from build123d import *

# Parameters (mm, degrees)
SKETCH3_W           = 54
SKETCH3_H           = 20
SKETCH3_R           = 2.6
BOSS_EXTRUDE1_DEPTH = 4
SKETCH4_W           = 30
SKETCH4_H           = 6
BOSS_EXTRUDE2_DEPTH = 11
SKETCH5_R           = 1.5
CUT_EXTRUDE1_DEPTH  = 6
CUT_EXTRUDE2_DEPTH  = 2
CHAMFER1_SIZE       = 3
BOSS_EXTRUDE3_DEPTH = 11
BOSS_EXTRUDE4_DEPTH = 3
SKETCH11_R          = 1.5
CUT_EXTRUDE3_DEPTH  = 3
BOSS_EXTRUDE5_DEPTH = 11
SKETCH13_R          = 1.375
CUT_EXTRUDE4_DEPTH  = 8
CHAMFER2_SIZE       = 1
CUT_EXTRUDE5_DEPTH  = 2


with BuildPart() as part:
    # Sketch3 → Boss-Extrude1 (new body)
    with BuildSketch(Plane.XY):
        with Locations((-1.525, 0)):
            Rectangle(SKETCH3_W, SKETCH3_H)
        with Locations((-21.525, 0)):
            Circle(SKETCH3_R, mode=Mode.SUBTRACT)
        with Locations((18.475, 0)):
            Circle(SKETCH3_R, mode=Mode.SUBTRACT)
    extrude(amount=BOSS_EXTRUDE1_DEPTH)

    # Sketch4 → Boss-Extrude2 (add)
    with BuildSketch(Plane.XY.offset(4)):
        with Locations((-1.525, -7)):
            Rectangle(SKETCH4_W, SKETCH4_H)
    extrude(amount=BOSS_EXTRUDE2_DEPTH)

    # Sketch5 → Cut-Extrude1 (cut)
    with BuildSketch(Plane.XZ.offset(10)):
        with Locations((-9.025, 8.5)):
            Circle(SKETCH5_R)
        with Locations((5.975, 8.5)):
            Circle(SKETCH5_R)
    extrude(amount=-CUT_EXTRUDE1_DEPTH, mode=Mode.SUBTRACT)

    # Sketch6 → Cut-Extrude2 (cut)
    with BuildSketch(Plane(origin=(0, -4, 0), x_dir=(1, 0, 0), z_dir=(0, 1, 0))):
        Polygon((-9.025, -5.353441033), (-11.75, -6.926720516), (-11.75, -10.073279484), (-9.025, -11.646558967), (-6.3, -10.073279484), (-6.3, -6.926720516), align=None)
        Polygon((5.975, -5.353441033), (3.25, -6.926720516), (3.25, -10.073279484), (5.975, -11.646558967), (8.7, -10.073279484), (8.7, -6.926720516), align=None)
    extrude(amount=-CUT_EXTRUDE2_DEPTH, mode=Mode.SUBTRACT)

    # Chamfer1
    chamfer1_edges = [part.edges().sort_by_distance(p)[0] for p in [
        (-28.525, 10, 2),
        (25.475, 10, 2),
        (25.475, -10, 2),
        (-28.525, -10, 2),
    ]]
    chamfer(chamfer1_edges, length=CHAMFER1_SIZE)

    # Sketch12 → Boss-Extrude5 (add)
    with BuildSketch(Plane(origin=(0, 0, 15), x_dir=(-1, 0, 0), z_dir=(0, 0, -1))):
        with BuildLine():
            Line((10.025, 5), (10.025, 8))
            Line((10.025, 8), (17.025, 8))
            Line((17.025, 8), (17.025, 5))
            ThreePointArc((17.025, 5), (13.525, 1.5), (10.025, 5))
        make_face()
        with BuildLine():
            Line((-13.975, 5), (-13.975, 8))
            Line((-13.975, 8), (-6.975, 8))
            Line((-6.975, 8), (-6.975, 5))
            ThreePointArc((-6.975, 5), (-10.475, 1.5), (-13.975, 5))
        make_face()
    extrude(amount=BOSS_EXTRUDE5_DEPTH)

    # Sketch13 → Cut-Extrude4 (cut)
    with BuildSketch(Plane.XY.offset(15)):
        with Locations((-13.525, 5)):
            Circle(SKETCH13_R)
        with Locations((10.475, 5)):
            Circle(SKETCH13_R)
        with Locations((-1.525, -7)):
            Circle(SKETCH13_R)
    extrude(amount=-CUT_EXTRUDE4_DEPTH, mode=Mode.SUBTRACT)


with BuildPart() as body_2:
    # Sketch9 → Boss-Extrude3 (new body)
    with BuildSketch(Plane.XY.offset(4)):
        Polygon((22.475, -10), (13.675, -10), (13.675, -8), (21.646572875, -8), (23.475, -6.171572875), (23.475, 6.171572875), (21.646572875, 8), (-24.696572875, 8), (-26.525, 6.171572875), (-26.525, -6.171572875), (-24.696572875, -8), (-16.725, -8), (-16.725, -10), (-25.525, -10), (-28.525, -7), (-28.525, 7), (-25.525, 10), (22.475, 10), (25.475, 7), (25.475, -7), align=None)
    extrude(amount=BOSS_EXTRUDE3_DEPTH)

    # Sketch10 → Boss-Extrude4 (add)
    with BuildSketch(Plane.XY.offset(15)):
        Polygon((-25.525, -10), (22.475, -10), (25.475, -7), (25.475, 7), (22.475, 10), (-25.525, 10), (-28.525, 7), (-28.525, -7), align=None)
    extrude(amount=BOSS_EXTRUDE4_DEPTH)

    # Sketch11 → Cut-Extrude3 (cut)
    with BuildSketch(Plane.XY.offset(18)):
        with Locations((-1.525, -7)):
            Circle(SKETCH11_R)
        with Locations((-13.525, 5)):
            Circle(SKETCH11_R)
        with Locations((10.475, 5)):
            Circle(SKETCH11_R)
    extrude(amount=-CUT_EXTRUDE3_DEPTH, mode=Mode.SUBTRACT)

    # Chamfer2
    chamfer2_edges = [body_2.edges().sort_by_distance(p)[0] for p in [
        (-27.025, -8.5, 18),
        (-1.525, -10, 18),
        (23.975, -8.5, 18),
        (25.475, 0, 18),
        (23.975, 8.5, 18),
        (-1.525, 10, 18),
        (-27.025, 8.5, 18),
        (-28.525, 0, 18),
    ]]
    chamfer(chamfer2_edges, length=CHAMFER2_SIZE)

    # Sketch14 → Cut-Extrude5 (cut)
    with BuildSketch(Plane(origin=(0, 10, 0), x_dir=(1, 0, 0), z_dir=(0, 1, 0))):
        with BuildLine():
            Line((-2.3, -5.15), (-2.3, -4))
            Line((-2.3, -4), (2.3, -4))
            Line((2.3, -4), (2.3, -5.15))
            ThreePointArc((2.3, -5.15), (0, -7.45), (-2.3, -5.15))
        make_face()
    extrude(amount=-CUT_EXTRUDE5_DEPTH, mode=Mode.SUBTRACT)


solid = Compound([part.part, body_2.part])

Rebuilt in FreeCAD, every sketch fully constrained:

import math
import FreeCAD as App
import Part
import Sketcher

V = App.Vector
Q = App.Units.Quantity


def edges_at(feature, points):
    """Names of the edges that pass closest to the given points."""
    edges = feature.Shape.Edges
    near = lambda p: min(range(len(edges)), key=lambda i: edges[i].distToShape(Part.Vertex(*p))[0])
    return sorted({f"Edge{near(p) + 1}" for p in points})

doc = App.newDocument("Part")
params = doc.addObject("Spreadsheet::Sheet", "Params")
for row, (alias, value) in enumerate([
    ("sketch1_diameter", "5.2 mm"),
    ("sketch1_width", "54 mm"),
    ("sketch1_height", "20 mm"),
    ("pad1_length", "4 mm"),
    ("sketch2_width", "30 mm"),
    ("sketch2_height", "6 mm"),
    ("pad2_length", "11 mm"),
    ("sketch3_diameter", "3 mm"),
    ("pocket1_length", "6 mm"),
    ("pocket2_length", "2 mm"),
    ("chamfer_size", "3 mm"),
    ("sketch5_radius", "3.5 mm"),
    ("sketch5_height", "3 mm"),
    ("pad3_length", "11 mm"),
    ("sketch6_diameter", "2.75 mm"),
    ("pocket3_length", "8 mm"),
    ("sketch7_width", "48 mm"),
    ("sketch7_height", "14 mm"),
    ("sketch7_height2", "2 mm"),
    ("sketch7_width2", "8.8 mm"),
    ("pad4_length", "11 mm"),
    ("sketch8_width", "48 mm"),
    ("sketch8_height", "14 mm"),
    ("pad5_length", "3 mm"),
    ("sketch9_diameter", "3 mm"),
    ("pocket4_length", "3 mm"),
    ("chamfer2_size", "1 mm"),
    ("sketch10_radius", "2.3 mm"),
    ("sketch10_height", "1.15 mm"),
    ("pocket5_length", "2 mm"),
], start=1):
    params.set(f"A{row}", alias)
    params.set(f"B{row}", "=" + value)
    params.setAlias(f"B{row}", alias)

body = doc.addObject("PartDesign::Body", "Body")

# Sketch on XY plane
sketch1 = body.newObject("Sketcher::SketchObject", "Sketch")
sketch1.AttachmentSupport = (doc.getObject("XY_Plane"), [""])
sketch1.MapMode = "FlatFace"
sketch1.addGeometry(Part.LineSegment(V(-28.5, 10, 0), V(-28.5, -10, 0)), False)
sketch1.addGeometry(Part.LineSegment(V(-28.5, -10, 0), V(25.5, -10, 0)), False)
sketch1.addGeometry(Part.LineSegment(V(25.5, -10, 0), V(25.5, 10, 0)), False)
sketch1.addGeometry(Part.LineSegment(V(25.5, 10, 0), V(-28.5, 10, 0)), False)
sketch1.addGeometry(Part.Circle(V(-21.5, 0, 0), V(0, 0, 1), 2.6), False)
sketch1.addGeometry(Part.Circle(V(18.5, 0, 0), V(0, 0, 1), 2.6), False)
sketch1.addConstraint(Sketcher.Constraint("Coincident", 0, 2, 1, 1))
sketch1.addConstraint(Sketcher.Constraint("Coincident", 1, 2, 2, 1))
sketch1.addConstraint(Sketcher.Constraint("Coincident", 2, 2, 3, 1))
sketch1.addConstraint(Sketcher.Constraint("Coincident", 3, 2, 0, 1))
sketch1.addConstraint(Sketcher.Constraint("Vertical", 0))
sketch1.addConstraint(Sketcher.Constraint("Horizontal", 1))
sketch1.addConstraint(Sketcher.Constraint("Vertical", 2))
sketch1.addConstraint(Sketcher.Constraint("Horizontal", 3))
sketch1.addConstraint(Sketcher.Constraint("Equal", 4, 5))
sketch1.addConstraint(Sketcher.Constraint("PointOnObject", 4, 3, -1))
sketch1.addConstraint(Sketcher.Constraint("PointOnObject", 5, 3, -1))
sketch1.addConstraint(Sketcher.Constraint("Diameter", 4, Q("5.2 mm")))
sketch1.addConstraint(Sketcher.Constraint("DistanceX", 1, 1, 1, 2, Q("54 mm")))
sketch1.addConstraint(Sketcher.Constraint("DistanceY", 0, 2, 0, 1, Q("20 mm")))
sketch1.addConstraint(Sketcher.Constraint("DistanceY", 0, 2, -1, 1, Q("10 mm")))
sketch1.addConstraint(Sketcher.Constraint("DistanceX", 4, 3, 5, 3, Q("40 mm")))
sketch1.addConstraint(Sketcher.Constraint("DistanceX", 0, 2, 4, 3, Q("7 mm")))
sketch1.addConstraint(Sketcher.Constraint("DistanceX", 4, 3, -1, 1, Q("21.525 mm")))
sketch1.setExpression("Constraints[11]", "Params.sketch1_diameter")
sketch1.setExpression("Constraints[12]", "Params.sketch1_width")
sketch1.setExpression("Constraints[13]", "Params.sketch1_height")
pad1 = body.newObject("PartDesign::Pad", "Pad")
pad1.Profile = sketch1
pad1.setExpression("Length", "Params.pad1_length")

# Sketch on XY plane
sketch2 = body.newObject("Sketcher::SketchObject", "Sketch001")
sketch2.AttachmentSupport = (doc.getObject("XY_Plane"), [""])
sketch2.MapMode = "FlatFace"
sketch2.AttachmentOffset = App.Placement(V(0, 0, 4), App.Rotation())
sketch2.addGeometry(Part.LineSegment(V(-17, -4, 0), V(-17, -10, 0)), False)
sketch2.addGeometry(Part.LineSegment(V(-17, -10, 0), V(13, -10, 0)), False)
sketch2.addGeometry(Part.LineSegment(V(13, -10, 0), V(13, -4, 0)), False)
sketch2.addGeometry(Part.LineSegment(V(13, -4, 0), V(-17, -4, 0)), False)
sketch2.addConstraint(Sketcher.Constraint("Coincident", 0, 2, 1, 1))
sketch2.addConstraint(Sketcher.Constraint("Coincident", 1, 2, 2, 1))
sketch2.addConstraint(Sketcher.Constraint("Coincident", 2, 2, 3, 1))
sketch2.addConstraint(Sketcher.Constraint("Coincident", 3, 2, 0, 1))
sketch2.addConstraint(Sketcher.Constraint("Vertical", 0))
sketch2.addConstraint(Sketcher.Constraint("Horizontal", 1))
sketch2.addConstraint(Sketcher.Constraint("Vertical", 2))
sketch2.addConstraint(Sketcher.Constraint("Horizontal", 3))
sketch2.addConstraint(Sketcher.Constraint("DistanceX", 1, 1, 1, 2, Q("30 mm")))
sketch2.addConstraint(Sketcher.Constraint("DistanceY", 0, 2, 0, 1, Q("6 mm")))
sketch2.addConstraint(Sketcher.Constraint("DistanceY", 0, 2, -1, 1, Q("10 mm")))
sketch2.addConstraint(Sketcher.Constraint("DistanceX", 0, 2, -1, 1, Q("16.525 mm")))
sketch2.setExpression("Constraints[8]", "Params.sketch2_width")
sketch2.setExpression("Constraints[9]", "Params.sketch2_height")
pad2 = body.newObject("PartDesign::Pad", "Pad001")
pad2.Profile = sketch2
pad2.setExpression("Length", "Params.pad2_length")

# Sketch on XZ plane
sketch3 = body.newObject("Sketcher::SketchObject", "Sketch002")
sketch3.AttachmentSupport = (doc.getObject("XZ_Plane"), [""])
sketch3.MapMode = "FlatFace"
sketch3.AttachmentOffset = App.Placement(V(0, 0, 10), App.Rotation())
sketch3.addGeometry(Part.Circle(V(-9, 8.5, 0), V(0, 0, 1), 1.5), False)
sketch3.addGeometry(Part.Circle(V(6, 8.5, 0), V(0, 0, 1), 1.5), False)
sketch3.addConstraint(Sketcher.Constraint("Equal", 0, 1))
sketch3.addConstraint(Sketcher.Constraint("Horizontal", 0, 3, 1, 3))
sketch3.addConstraint(Sketcher.Constraint("Diameter", 0, Q("3 mm")))
sketch3.addConstraint(Sketcher.Constraint("DistanceX", 0, 3, 1, 3, Q("15 mm")))
sketch3.addConstraint(Sketcher.Constraint("DistanceY", -1, 1, 0, 3, Q("8.5 mm")))
sketch3.addConstraint(Sketcher.Constraint("DistanceX", 0, 3, -1, 1, Q("9.025 mm")))
sketch3.setExpression("Constraints[2]", "Params.sketch3_diameter")
pocket1 = body.newObject("PartDesign::Pocket", "Pocket")
pocket1.Profile = sketch3
pocket1.setExpression("Length", "Params.pocket1_length")

# Sketch on XZ plane
sketch4 = body.newObject("Sketcher::SketchObject", "Sketch003")
sketch4.AttachmentSupport = (doc.getObject("XZ_Plane"), [""])
sketch4.MapMode = "FlatFace"
sketch4.AttachmentOffset = App.Placement(V(0, 0, 4), App.Rotation())
sketch4.addGeometry(Part.LineSegment(V(-9, 5.4, 0), V(-11.8, 6.9, 0)), False)
sketch4.addGeometry(Part.LineSegment(V(-11.8, 6.9, 0), V(-11.8, 10.1, 0)), False)
sketch4.addGeometry(Part.LineSegment(V(-11.8, 10.1, 0), V(-9, 11.6, 0)), False)
sketch4.addGeometry(Part.LineSegment(V(-9, 11.6, 0), V(-6.3, 10.1, 0)), False)
sketch4.addGeometry(Part.LineSegment(V(-6.3, 10.1, 0), V(-6.3, 6.9, 0)), False)
sketch4.addGeometry(Part.LineSegment(V(-6.3, 6.9, 0), V(-9, 5.4, 0)), False)
sketch4.addGeometry(Part.LineSegment(V(6, 5.4, 0), V(3.2, 6.9, 0)), False)
sketch4.addGeometry(Part.LineSegment(V(3.2, 6.9, 0), V(3.2, 10.1, 0)), False)
sketch4.addGeometry(Part.LineSegment(V(3.2, 10.1, 0), V(6, 11.6, 0)), False)
sketch4.addGeometry(Part.LineSegment(V(6, 11.6, 0), V(8.7, 10.1, 0)), False)
sketch4.addGeometry(Part.LineSegment(V(8.7, 10.1, 0), V(8.7, 6.9, 0)), False)
sketch4.addGeometry(Part.LineSegment(V(8.7, 6.9, 0), V(6, 5.4, 0)), False)
sketch4.addConstraint(Sketcher.Constraint("Coincident", 0, 2, 1, 1))
sketch4.addConstraint(Sketcher.Constraint("Coincident", 1, 2, 2, 1))
sketch4.addConstraint(Sketcher.Constraint("Coincident", 2, 2, 3, 1))
sketch4.addConstraint(Sketcher.Constraint("Coincident", 3, 2, 4, 1))
sketch4.addConstraint(Sketcher.Constraint("Coincident", 4, 2, 5, 1))
sketch4.addConstraint(Sketcher.Constraint("Coincident", 5, 2, 0, 1))
sketch4.addConstraint(Sketcher.Constraint("Coincident", 6, 2, 7, 1))
sketch4.addConstraint(Sketcher.Constraint("Coincident", 7, 2, 8, 1))
sketch4.addConstraint(Sketcher.Constraint("Coincident", 8, 2, 9, 1))
sketch4.addConstraint(Sketcher.Constraint("Coincident", 9, 2, 10, 1))
sketch4.addConstraint(Sketcher.Constraint("Coincident", 10, 2, 11, 1))
sketch4.addConstraint(Sketcher.Constraint("Coincident", 11, 2, 6, 1))
sketch4.addConstraint(Sketcher.Constraint("Vertical", 1))
sketch4.addConstraint(Sketcher.Constraint("Vertical", 4))
sketch4.addConstraint(Sketcher.Constraint("Vertical", 7))
sketch4.addConstraint(Sketcher.Constraint("Vertical", 10))
sketch4.addConstraint(Sketcher.Constraint("Parallel", 0, 3))
sketch4.addConstraint(Sketcher.Constraint("Parallel", 2, 5))
sketch4.addConstraint(Sketcher.Constraint("Parallel", 3, 6))
sketch4.addConstraint(Sketcher.Constraint("Parallel", 5, 8))
sketch4.addConstraint(Sketcher.Constraint("Parallel", 6, 9))
sketch4.addConstraint(Sketcher.Constraint("Parallel", 8, 11))
sketch4.addConstraint(Sketcher.Constraint("Horizontal", 1, 2, 3, 2))
sketch4.addConstraint(Sketcher.Constraint("Horizontal", 0, 2, 4, 2))
sketch4.addConstraint(Sketcher.Constraint("Horizontal", 4, 2, 6, 2))
sketch4.addConstraint(Sketcher.Constraint("Horizontal", 3, 2, 7, 2))
sketch4.addConstraint(Sketcher.Constraint("Horizontal", 2, 2, 8, 2))
sketch4.addConstraint(Sketcher.Constraint("Horizontal", 7, 2, 9, 2))
sketch4.addConstraint(Sketcher.Constraint("Horizontal", 6, 2, 10, 2))
sketch4.addConstraint(Sketcher.Constraint("Vertical", 2, 2, 5, 2))
sketch4.addConstraint(Sketcher.Constraint("Angle", 0, Q("150 deg")))
sketch4.addConstraint(Sketcher.Constraint("DistanceX", 0, 2, 6, 2, Q("15 mm")))
sketch4.addConstraint(Sketcher.Constraint("DistanceX", 3, 2, -1, 1, Q("6.3 mm")))
sketch4.addConstraint(Sketcher.Constraint("DistanceX", 0, 2, -1, 1, Q("11.75 mm")))
sketch4.addConstraint(Sketcher.Constraint("DistanceY", 1, 1, 1, 2, Q("3.146559 mm")))
sketch4.addConstraint(Sketcher.Constraint("DistanceY", -1, 1, 0, 2, Q("6.926721 mm")))
pocket2 = body.newObject("PartDesign::Pocket", "Pocket001")
pocket2.Profile = sketch4
pocket2.setExpression("Length", "Params.pocket2_length")
pocket2.Reversed = True
doc.recompute()

chamfer = body.newObject("PartDesign::Chamfer", "Chamfer")
chamfer.Base = (pocket2, edges_at(pocket2, [
    (-28.525, 10, 2),
    (25.475, 10, 2),
    (25.475, -10, 2),
    (-28.525, -10, 2),
]))
chamfer.setExpression("Size", "Params.chamfer_size")

# Sketch on XY plane
sketch5 = body.newObject("Sketcher::SketchObject", "Sketch004")
sketch5.AttachmentSupport = (doc.getObject("XY_Plane"), [""])
sketch5.MapMode = "FlatFace"
sketch5.AttachmentOffset = App.Placement(V(0, 0, 15), App.Rotation())
sketch5.addGeometry(Part.LineSegment(V(-10, 8, 0), V(-10, 5, 0)), False)
sketch5.addGeometry(Part.ArcOfCircle(Part.Circle(V(-13.5, 5, 0), V(0, 0, 1), 3.5), math.radians(180), math.radians(360)), False)
sketch5.addGeometry(Part.LineSegment(V(-17, 5, 0), V(-17, 8, 0)), False)
sketch5.addGeometry(Part.LineSegment(V(-17, 8, 0), V(-10, 8, 0)), False)
sketch5.addGeometry(Part.LineSegment(V(14, 8, 0), V(14, 5, 0)), False)
sketch5.addGeometry(Part.ArcOfCircle(Part.Circle(V(10.5, 5, 0), V(0, 0, 1), 3.5), math.radians(180), math.radians(360)), False)
sketch5.addGeometry(Part.LineSegment(V(7, 5, 0), V(7, 8, 0)), False)
sketch5.addGeometry(Part.LineSegment(V(7, 8, 0), V(14, 8, 0)), False)
sketch5.addConstraint(Sketcher.Constraint("Tangent", 0, 2, 1, 2))
sketch5.addConstraint(Sketcher.Constraint("Tangent", 1, 1, 2, 1))
sketch5.addConstraint(Sketcher.Constraint("Coincident", 2, 2, 3, 1))
sketch5.addConstraint(Sketcher.Constraint("Coincident", 3, 2, 0, 1))
sketch5.addConstraint(Sketcher.Constraint("Tangent", 4, 2, 5, 2))
sketch5.addConstraint(Sketcher.Constraint("Tangent", 5, 1, 6, 1))
sketch5.addConstraint(Sketcher.Constraint("Coincident", 6, 2, 7, 1))
sketch5.addConstraint(Sketcher.Constraint("Coincident", 7, 2, 4, 1))
sketch5.addConstraint(Sketcher.Constraint("Vertical", 0))
sketch5.addConstraint(Sketcher.Constraint("Vertical", 2))
sketch5.addConstraint(Sketcher.Constraint("Horizontal", 3))
sketch5.addConstraint(Sketcher.Constraint("Vertical", 4))
sketch5.addConstraint(Sketcher.Constraint("Vertical", 6))
sketch5.addConstraint(Sketcher.Constraint("Horizontal", 7))
sketch5.addConstraint(Sketcher.Constraint("Equal", 1, 5))
sketch5.addConstraint(Sketcher.Constraint("Horizontal", 1, 3, 5, 3))
sketch5.addConstraint(Sketcher.Constraint("Horizontal", 3, 2, 6, 2))
sketch5.addConstraint(Sketcher.Constraint("Radius", 1, Q("3.5 mm")))
sketch5.addConstraint(Sketcher.Constraint("DistanceY", 0, 2, 0, 1, Q("3 mm")))
sketch5.addConstraint(Sketcher.Constraint("DistanceY", -1, 1, 1, 3, Q("5 mm")))
sketch5.addConstraint(Sketcher.Constraint("DistanceX", 1, 3, 5, 3, Q("24 mm")))
sketch5.addConstraint(Sketcher.Constraint("DistanceX", 1, 3, -1, 1, Q("13.525 mm")))
sketch5.setExpression("Constraints[17]", "Params.sketch5_radius")
sketch5.setExpression("Constraints[18]", "Params.sketch5_height")
pad3 = body.newObject("PartDesign::Pad", "Pad002")
pad3.Profile = sketch5
pad3.setExpression("Length", "Params.pad3_length")
pad3.Reversed = True

# Sketch on XY plane
sketch6 = body.newObject("Sketcher::SketchObject", "Sketch005")
sketch6.AttachmentSupport = (doc.getObject("XY_Plane"), [""])
sketch6.MapMode = "FlatFace"
sketch6.AttachmentOffset = App.Placement(V(0, 0, 15), App.Rotation())
sketch6.addGeometry(Part.Circle(V(-13.5, 5, 0), V(0, 0, 1), 1.4), False)
sketch6.addGeometry(Part.Circle(V(10.5, 5, 0), V(0, 0, 1), 1.4), False)
sketch6.addGeometry(Part.Circle(V(-1.5, -7, 0), V(0, 0, 1), 1.4), False)
sketch6.addConstraint(Sketcher.Constraint("Equal", 0, 1))
sketch6.addConstraint(Sketcher.Constraint("Equal", 1, 2))
sketch6.addConstraint(Sketcher.Constraint("Horizontal", 0, 3, 1, 3))
sketch6.addConstraint(Sketcher.Constraint("Diameter", 0, Q("2.75 mm")))
sketch6.addConstraint(Sketcher.Constraint("DistanceY", -1, 1, 0, 3, Q("5 mm")))
sketch6.addConstraint(Sketcher.Constraint("DistanceY", 2, 3, -1, 1, Q("7 mm")))
sketch6.addConstraint(Sketcher.Constraint("DistanceX", 0, 3, 1, 3, Q("24 mm")))
sketch6.addConstraint(Sketcher.Constraint("DistanceX", 0, 3, 2, 3, Q("12 mm")))
sketch6.addConstraint(Sketcher.Constraint("DistanceX", 0, 3, -1, 1, Q("13.525 mm")))
sketch6.setExpression("Constraints[3]", "Params.sketch6_diameter")
pocket3 = body.newObject("PartDesign::Pocket", "Pocket002")
pocket3.Profile = sketch6
pocket3.setExpression("Length", "Params.pocket3_length")
body2 = doc.addObject("PartDesign::Body", "Body001")

# Sketch on XY plane
sketch7 = body2.newObject("Sketcher::SketchObject", "Sketch006")
sketch7.AttachmentSupport = (doc.getObject("XY_Plane001"), [""])
sketch7.MapMode = "FlatFace"
sketch7.AttachmentOffset = App.Placement(V(0, 0, 4), App.Rotation())
sketch7.addGeometry(Part.LineSegment(V(13.7, -10, 0), V(22.5, -10, 0)), False)
sketch7.addGeometry(Part.LineSegment(V(22.5, -10, 0), V(25.5, -7, 0)), False)
sketch7.addGeometry(Part.LineSegment(V(25.5, -7, 0), V(25.5, 7, 0)), False)
sketch7.addGeometry(Part.LineSegment(V(25.5, 7, 0), V(22.5, 10, 0)), False)
sketch7.addGeometry(Part.LineSegment(V(22.5, 10, 0), V(-25.5, 10, 0)), False)
sketch7.addGeometry(Part.LineSegment(V(-25.5, 10, 0), V(-28.5, 7, 0)), False)
sketch7.addGeometry(Part.LineSegment(V(-28.5, 7, 0), V(-28.5, -7, 0)), False)
sketch7.addGeometry(Part.LineSegment(V(-28.5, -7, 0), V(-25.5, -10, 0)), False)
sketch7.addGeometry(Part.LineSegment(V(-25.5, -10, 0), V(-16.7, -10, 0)), False)
sketch7.addGeometry(Part.LineSegment(V(-16.7, -10, 0), V(-16.7, -8, 0)), False)
sketch7.addGeometry(Part.LineSegment(V(-16.7, -8, 0), V(-24.7, -8, 0)), False)
sketch7.addGeometry(Part.LineSegment(V(-24.7, -8, 0), V(-26.5, -6.2, 0)), False)
sketch7.addGeometry(Part.LineSegment(V(-26.5, -6.2, 0), V(-26.5, 6.2, 0)), False)
sketch7.addGeometry(Part.LineSegment(V(-26.5, 6.2, 0), V(-24.7, 8, 0)), False)
sketch7.addGeometry(Part.LineSegment(V(-24.7, 8, 0), V(21.6, 8, 0)), False)
sketch7.addGeometry(Part.LineSegment(V(21.6, 8, 0), V(23.5, 6.2, 0)), False)
sketch7.addGeometry(Part.LineSegment(V(23.5, 6.2, 0), V(23.5, -6.2, 0)), False)
sketch7.addGeometry(Part.LineSegment(V(23.5, -6.2, 0), V(21.6, -8, 0)), False)
sketch7.addGeometry(Part.LineSegment(V(21.6, -8, 0), V(13.7, -8, 0)), False)
sketch7.addGeometry(Part.LineSegment(V(13.7, -8, 0), V(13.7, -10, 0)), False)
sketch7.addConstraint(Sketcher.Constraint("Coincident", 0, 2, 1, 1))
sketch7.addConstraint(Sketcher.Constraint("Coincident", 1, 2, 2, 1))
sketch7.addConstraint(Sketcher.Constraint("Coincident", 2, 2, 3, 1))
sketch7.addConstraint(Sketcher.Constraint("Coincident", 3, 2, 4, 1))
sketch7.addConstraint(Sketcher.Constraint("Coincident", 4, 2, 5, 1))
sketch7.addConstraint(Sketcher.Constraint("Coincident", 5, 2, 6, 1))
sketch7.addConstraint(Sketcher.Constraint("Coincident", 6, 2, 7, 1))
sketch7.addConstraint(Sketcher.Constraint("Coincident", 7, 2, 8, 1))
sketch7.addConstraint(Sketcher.Constraint("Coincident", 8, 2, 9, 1))
sketch7.addConstraint(Sketcher.Constraint("Coincident", 9, 2, 10, 1))
sketch7.addConstraint(Sketcher.Constraint("Coincident", 10, 2, 11, 1))
sketch7.addConstraint(Sketcher.Constraint("Coincident", 11, 2, 12, 1))
sketch7.addConstraint(Sketcher.Constraint("Coincident", 12, 2, 13, 1))
sketch7.addConstraint(Sketcher.Constraint("Coincident", 13, 2, 14, 1))
sketch7.addConstraint(Sketcher.Constraint("Coincident", 14, 2, 15, 1))
sketch7.addConstraint(Sketcher.Constraint("Coincident", 15, 2, 16, 1))
sketch7.addConstraint(Sketcher.Constraint("Coincident", 16, 2, 17, 1))
sketch7.addConstraint(Sketcher.Constraint("Coincident", 17, 2, 18, 1))
sketch7.addConstraint(Sketcher.Constraint("Coincident", 18, 2, 19, 1))
sketch7.addConstraint(Sketcher.Constraint("Coincident", 19, 2, 0, 1))
sketch7.addConstraint(Sketcher.Constraint("Horizontal", 0))
sketch7.addConstraint(Sketcher.Constraint("Vertical", 2))
sketch7.addConstraint(Sketcher.Constraint("Horizontal", 4))
sketch7.addConstraint(Sketcher.Constraint("Vertical", 6))
sketch7.addConstraint(Sketcher.Constraint("Horizontal", 8))
sketch7.addConstraint(Sketcher.Constraint("Vertical", 9))
sketch7.addConstraint(Sketcher.Constraint("Horizontal", 10))
sketch7.addConstraint(Sketcher.Constraint("Vertical", 12))
sketch7.addConstraint(Sketcher.Constraint("Horizontal", 14))
sketch7.addConstraint(Sketcher.Constraint("Vertical", 16))
sketch7.addConstraint(Sketcher.Constraint("Horizontal", 18))
sketch7.addConstraint(Sketcher.Constraint("Vertical", 19))
sketch7.addConstraint(Sketcher.Constraint("Symmetric", 0, 2, 3, 2, -1))
sketch7.addConstraint(Sketcher.Constraint("Symmetric", 4, 2, 7, 2, -1))
sketch7.addConstraint(Sketcher.Constraint("Symmetric", 10, 2, 13, 2, -1))
sketch7.addConstraint(Sketcher.Constraint("Symmetric", 14, 2, 17, 2, -1))
sketch7.addConstraint(Sketcher.Constraint("Perpendicular", 1, 3))
sketch7.addConstraint(Sketcher.Constraint("Perpendicular", 3, 5))
sketch7.addConstraint(Sketcher.Constraint("Perpendicular", 5, 7))
sketch7.addConstraint(Sketcher.Constraint("Parallel", 7, 11))
sketch7.addConstraint(Sketcher.Constraint("Perpendicular", 11, 13))
sketch7.addConstraint(Sketcher.Constraint("Perpendicular", 13, 15))
sketch7.addConstraint(Sketcher.Constraint("Perpendicular", 15, 17))
sketch7.addConstraint(Sketcher.Constraint("Horizontal", 2, 2, 5, 2))
sketch7.addConstraint(Sketcher.Constraint("Horizontal", 1, 2, 6, 2))
sketch7.addConstraint(Sketcher.Constraint("Horizontal", 12, 2, 15, 2))
sketch7.addConstraint(Sketcher.Constraint("Equal", 0, 8))
sketch7.addConstraint(Sketcher.Constraint("Equal", 10, 18))
sketch7.addConstraint(Sketcher.Constraint("DistanceX", 4, 2, 4, 1, Q("48 mm")))
sketch7.addConstraint(Sketcher.Constraint("DistanceY", 2, 1, 2, 2, Q("14 mm")))
sketch7.addConstraint(Sketcher.Constraint("DistanceY", 9, 1, 9, 2, Q("2 mm")))
sketch7.addConstraint(Sketcher.Constraint("DistanceX", 0, 1, 0, 2, Q("8.8 mm")))
sketch7.addConstraint(Sketcher.Constraint("DistanceY", 0, 2, -1, 1, Q("10 mm")))
sketch7.addConstraint(Sketcher.Constraint("DistanceX", 6, 2, 11, 2, Q("2 mm")))
sketch7.addConstraint(Sketcher.Constraint("DistanceX", -1, 1, 0, 2, Q("22.475 mm")))
sketch7.addConstraint(Sketcher.Constraint("DistanceX", 10, 2, 10, 1, Q("7.971573 mm")))
sketch7.setExpression("Constraints[48]", "Params.sketch7_width")
sketch7.setExpression("Constraints[49]", "Params.sketch7_height")
sketch7.setExpression("Constraints[50]", "Params.sketch7_height2")
sketch7.setExpression("Constraints[51]", "Params.sketch7_width2")
pad4 = body2.newObject("PartDesign::Pad", "Pad003")
pad4.Profile = sketch7
pad4.setExpression("Length", "Params.pad4_length")

# Sketch on XY plane
sketch8 = body2.newObject("Sketcher::SketchObject", "Sketch007")
sketch8.AttachmentSupport = (doc.getObject("XY_Plane001"), [""])
sketch8.MapMode = "FlatFace"
sketch8.AttachmentOffset = App.Placement(V(0, 0, 15), App.Rotation())
sketch8.addGeometry(Part.LineSegment(V(-25.5, -10, 0), V(22.5, -10, 0)), False)
sketch8.addGeometry(Part.LineSegment(V(22.5, -10, 0), V(25.5, -7, 0)), False)
sketch8.addGeometry(Part.LineSegment(V(25.5, -7, 0), V(25.5, 7, 0)), False)
sketch8.addGeometry(Part.LineSegment(V(25.5, 7, 0), V(22.5, 10, 0)), False)
sketch8.addGeometry(Part.LineSegment(V(22.5, 10, 0), V(-25.5, 10, 0)), False)
sketch8.addGeometry(Part.LineSegment(V(-25.5, 10, 0), V(-28.5, 7, 0)), False)
sketch8.addGeometry(Part.LineSegment(V(-28.5, 7, 0), V(-28.5, -7, 0)), False)
sketch8.addGeometry(Part.LineSegment(V(-28.5, -7, 0), V(-25.5, -10, 0)), False)
sketch8.addConstraint(Sketcher.Constraint("Coincident", 0, 2, 1, 1))
sketch8.addConstraint(Sketcher.Constraint("Coincident", 1, 2, 2, 1))
sketch8.addConstraint(Sketcher.Constraint("Coincident", 2, 2, 3, 1))
sketch8.addConstraint(Sketcher.Constraint("Coincident", 3, 2, 4, 1))
sketch8.addConstraint(Sketcher.Constraint("Coincident", 4, 2, 5, 1))
sketch8.addConstraint(Sketcher.Constraint("Coincident", 5, 2, 6, 1))
sketch8.addConstraint(Sketcher.Constraint("Coincident", 6, 2, 7, 1))
sketch8.addConstraint(Sketcher.Constraint("Coincident", 7, 2, 0, 1))
sketch8.addConstraint(Sketcher.Constraint("Horizontal", 0))
sketch8.addConstraint(Sketcher.Constraint("Vertical", 2))
sketch8.addConstraint(Sketcher.Constraint("Horizontal", 4))
sketch8.addConstraint(Sketcher.Constraint("Vertical", 6))
sketch8.addConstraint(Sketcher.Constraint("Symmetric", 0, 2, 3, 2, -1))
sketch8.addConstraint(Sketcher.Constraint("Perpendicular", 1, 3))
sketch8.addConstraint(Sketcher.Constraint("Perpendicular", 3, 5))
sketch8.addConstraint(Sketcher.Constraint("Perpendicular", 5, 7))
sketch8.addConstraint(Sketcher.Constraint("Horizontal", 2, 2, 5, 2))
sketch8.addConstraint(Sketcher.Constraint("Horizontal", 1, 2, 6, 2))
sketch8.addConstraint(Sketcher.Constraint("Vertical", 4, 2, 7, 2))
sketch8.addConstraint(Sketcher.Constraint("DistanceX", 0, 1, 0, 2, Q("48 mm")))
sketch8.addConstraint(Sketcher.Constraint("DistanceY", 2, 1, 2, 2, Q("14 mm")))
sketch8.addConstraint(Sketcher.Constraint("DistanceY", 0, 2, -1, 1, Q("10 mm")))
sketch8.addConstraint(Sketcher.Constraint("DistanceX", -1, 1, 0, 2, Q("22.475 mm")))
sketch8.setExpression("Constraints[19]", "Params.sketch8_width")
sketch8.setExpression("Constraints[20]", "Params.sketch8_height")
pad5 = body2.newObject("PartDesign::Pad", "Pad004")
pad5.Profile = sketch8
pad5.setExpression("Length", "Params.pad5_length")

# Sketch on XY plane
sketch9 = body2.newObject("Sketcher::SketchObject", "Sketch008")
sketch9.AttachmentSupport = (doc.getObject("XY_Plane001"), [""])
sketch9.MapMode = "FlatFace"
sketch9.AttachmentOffset = App.Placement(V(0, 0, 18), App.Rotation())
sketch9.addGeometry(Part.Circle(V(-1.5, -7, 0), V(0, 0, 1), 1.5), False)
sketch9.addGeometry(Part.Circle(V(-13.5, 5, 0), V(0, 0, 1), 1.5), False)
sketch9.addGeometry(Part.Circle(V(10.5, 5, 0), V(0, 0, 1), 1.5), False)
sketch9.addConstraint(Sketcher.Constraint("Equal", 0, 1))
sketch9.addConstraint(Sketcher.Constraint("Equal", 1, 2))
sketch9.addConstraint(Sketcher.Constraint("Horizontal", 1, 3, 2, 3))
sketch9.addConstraint(Sketcher.Constraint("Diameter", 0, Q("3 mm")))
sketch9.addConstraint(Sketcher.Constraint("DistanceY", 0, 3, -1, 1, Q("7 mm")))
sketch9.addConstraint(Sketcher.Constraint("DistanceY", -1, 1, 1, 3, Q("5 mm")))
sketch9.addConstraint(Sketcher.Constraint("DistanceX", 1, 3, 0, 3, Q("12 mm")))
sketch9.addConstraint(Sketcher.Constraint("DistanceX", 0, 3, 2, 3, Q("12 mm")))
sketch9.addConstraint(Sketcher.Constraint("DistanceX", 0, 3, -1, 1, Q("1.525 mm")))
sketch9.setExpression("Constraints[3]", "Params.sketch9_diameter")
pocket4 = body2.newObject("PartDesign::Pocket", "Pocket003")
pocket4.Profile = sketch9
pocket4.setExpression("Length", "Params.pocket4_length")
doc.recompute()

chamfer2 = body2.newObject("PartDesign::Chamfer", "Chamfer001")
chamfer2.Base = (pocket4, edges_at(pocket4, [
    (-27.025, -8.5, 18),
    (-1.525, -10, 18),
    (23.975, -8.5, 18),
    (25.475, 0, 18),
    (23.975, 8.5, 18),
    (-1.525, 10, 18),
    (-27.025, 8.5, 18),
    (-28.525, 0, 18),
]))
chamfer2.setExpression("Size", "Params.chamfer2_size")

# Sketch on XZ plane
sketch10 = body2.newObject("Sketcher::SketchObject", "Sketch009")
sketch10.AttachmentSupport = (doc.getObject("XZ_Plane001"), [""])
sketch10.MapMode = "FlatFace"
sketch10.AttachmentOffset = App.Placement(V(0, 0, -10), App.Rotation())
sketch10.addGeometry(Part.LineSegment(V(-2.3, 4, 0), V(-2.3, 5.2, 0)), False)
sketch10.addGeometry(Part.ArcOfCircle(Part.Circle(V(0, 5.2, 0), V(0, 0, 1), 2.3), math.radians(0), math.radians(180)), False)
sketch10.addGeometry(Part.LineSegment(V(2.3, 5.2, 0), V(2.3, 4, 0)), False)
sketch10.addGeometry(Part.LineSegment(V(2.3, 4, 0), V(-2.3, 4, 0)), False)
sketch10.addConstraint(Sketcher.Constraint("Tangent", 0, 2, 1, 2))
sketch10.addConstraint(Sketcher.Constraint("Tangent", 1, 1, 2, 1))
sketch10.addConstraint(Sketcher.Constraint("Coincident", 2, 2, 3, 1))
sketch10.addConstraint(Sketcher.Constraint("Coincident", 3, 2, 0, 1))
sketch10.addConstraint(Sketcher.Constraint("Vertical", 0))
sketch10.addConstraint(Sketcher.Constraint("Vertical", 2))
sketch10.addConstraint(Sketcher.Constraint("Horizontal", 3))
sketch10.addConstraint(Sketcher.Constraint("PointOnObject", 1, 3, -2))
sketch10.addConstraint(Sketcher.Constraint("Radius", 1, Q("2.3 mm")))
sketch10.addConstraint(Sketcher.Constraint("DistanceY", -1, 1, 2, 2, Q("4 mm")))
sketch10.addConstraint(Sketcher.Constraint("DistanceY", 0, 1, 0, 2, Q("1.15 mm")))
sketch10.setExpression("Constraints[8]", "Params.sketch10_radius")
sketch10.setExpression("Constraints[10]", "Params.sketch10_height")
pocket5 = body2.newObject("PartDesign::Pocket", "Pocket004")
pocket5.Profile = sketch10
pocket5.setExpression("Length", "Params.pocket5_length")
pocket5.Reversed = True

doc.recompute()
